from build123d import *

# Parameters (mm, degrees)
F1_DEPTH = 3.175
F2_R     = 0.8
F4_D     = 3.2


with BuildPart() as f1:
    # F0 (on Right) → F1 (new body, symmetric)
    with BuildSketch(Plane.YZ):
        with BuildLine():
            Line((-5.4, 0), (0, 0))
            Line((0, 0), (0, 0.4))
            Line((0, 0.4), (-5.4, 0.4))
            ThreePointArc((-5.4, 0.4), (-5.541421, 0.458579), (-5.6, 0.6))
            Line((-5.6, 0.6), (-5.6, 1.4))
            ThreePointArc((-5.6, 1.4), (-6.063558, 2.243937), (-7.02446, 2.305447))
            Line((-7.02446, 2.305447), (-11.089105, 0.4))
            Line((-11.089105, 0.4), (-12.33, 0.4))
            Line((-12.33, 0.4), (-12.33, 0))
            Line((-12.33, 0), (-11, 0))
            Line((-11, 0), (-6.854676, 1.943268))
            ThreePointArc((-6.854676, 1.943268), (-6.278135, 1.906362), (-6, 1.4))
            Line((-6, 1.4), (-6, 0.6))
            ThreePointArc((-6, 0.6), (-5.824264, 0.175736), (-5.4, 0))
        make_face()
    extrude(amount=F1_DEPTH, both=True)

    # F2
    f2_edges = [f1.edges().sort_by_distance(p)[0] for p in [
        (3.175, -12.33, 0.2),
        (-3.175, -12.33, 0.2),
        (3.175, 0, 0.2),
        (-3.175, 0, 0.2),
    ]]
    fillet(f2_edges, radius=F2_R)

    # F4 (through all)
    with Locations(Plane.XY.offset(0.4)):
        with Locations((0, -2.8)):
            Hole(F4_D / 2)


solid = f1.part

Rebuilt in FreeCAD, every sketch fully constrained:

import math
import FreeCAD as App
import Part
import Sketcher


def edges_at(feature, points):
    """Names of the edges that pass closest to the given points."""
    edges = feature.Shape.Edges
    near = lambda p: min(range(len(edges)), key=lambda i: edges[i].distToShape(Part.Vertex(*p))[0])
    return sorted({f"Edge{near(p) + 1}" for p in points})

doc = App.newDocument("Part")
body = doc.addObject("PartDesign::Body", "Body")

sketch1 = body.newObject("Sketcher::SketchObject", "Sketch")
sketch1.AttachmentSupport = (doc.getObject("YZ_Plane"), [""])
sketch1.MapMode = "FlatFace"
sketch1.addGeometry(Part.LineSegment(App.Vector(-5.4, 0, 0), App.Vector(0, 0, 0)), False)
sketch1.addGeometry(Part.LineSegment(App.Vector(0, 0, 0), App.Vector(0, 0.4, 0)), False)
sketch1.addGeometry(Part.LineSegment(App.Vector(0, 0.4, 0), App.Vector(-5.4, 0.4, 0)), False)
sketch1.addGeometry(Part.ArcOfCircle(Part.Circle(App.Vector(-5.4, 0.6, 0), App.Vector(0, 0, 1), 0.2), math.radians(-180), math.radians(-90)), False)
sketch1.addGeometry(Part.LineSegment(App.Vector(-5.6, 0.6, 0), App.Vector(-5.6, 1.4, 0)), False)
sketch1.addGeometry(Part.ArcOfCircle(Part.Circle(App.Vector(-6.6, 1.4, 0), App.Vector(0, 0, 1), 1), math.radians(0), math.radians(115)), False)
sketch1.addGeometry(Part.LineSegment(App.Vector(-7.02, 2.31, 0), App.Vector(-11.09, 0.4, 0)), False)
sketch1.addGeometry(Part.LineSegment(App.Vector(-11.09, 0.4, 0), App.Vector(-12.33, 0.4, 0)), False)
sketch1.addGeometry(Part.LineSegment(App.Vector(-12.33, 0.4, 0), App.Vector(-12.33, 0, 0)), False)
sketch1.addGeometry(Part.LineSegment(App.Vector(-12.33, 0, 0), App.Vector(-11, 0, 0)), False)
sketch1.addGeometry(Part.LineSegment(App.Vector(-11, 0, 0), App.Vector(-6.85, 1.94, 0)), False)
sketch1.addGeometry(Part.ArcOfCircle(Part.Circle(App.Vector(-6.6, 1.4, 0), App.Vector(0, 0, 1), 0.6), math.radians(0), math.radians(115)), False)
sketch1.addGeometry(Part.LineSegment(App.Vector(-6, 1.4, 0), App.Vector(-6, 0.6, 0)), False)
sketch1.addGeometry(Part.ArcOfCircle(Part.Circle(App.Vector(-5.4, 0.6, 0), App.Vector(0, 0, 1), 0.6), math.radians(-180), math.radians(-90)), False)
sketch1.addConstraint(Sketcher.Constraint("Coincident", 0, 2, 1, 1))
sketch1.addConstraint(Sketcher.Constraint("Coincident", 1, 2, 2, 1))
sketch1.addConstraint(Sketcher.Constraint("Coincident", 2, 2, 3, 2))
sketch1.addConstraint(Sketcher.Constraint("Coincident", 3, 1, 4, 1))
sketch1.addConstraint(Sketcher.Constraint("Tangent", 4, 2, 5, 1))
sketch1.addConstraint(Sketcher.Constraint("Tangent", 5, 2, 6, 1))
sketch1.addConstraint(Sketcher.Constraint("Coincident", 6, 2, 7, 1))
sketch1.addConstraint(Sketcher.Constraint("Coincident", 7, 2, 8, 1))
sketch1.addConstraint(Sketcher.Constraint("Coincident", 8, 2, 9, 1))
sketch1.addConstraint(Sketcher.Constraint("Coincident", 9, 2, 10, 1))
sketch1.addConstraint(Sketcher.Constraint("Tangent", 10, 2, 11, 2))
sketch1.addConstraint(Sketcher.Constraint("Tangent", 11, 1, 12, 1))
sketch1.addConstraint(Sketcher.Constraint("Tangent", 12, 2, 13, 1))
sketch1.addConstraint(Sketcher.Constraint("Tangent", 13, 2, 0, 1))
sketch1.addConstraint(Sketcher.Constraint("Horizontal", 0))
sketch1.addConstraint(Sketcher.Constraint("Vertical", 1))
sketch1.addConstraint(Sketcher.Constraint("Horizontal", 2))
sketch1.addConstraint(Sketcher.Constraint("Vertical", 4))
sketch1.addConstraint(Sketcher.Constraint("Horizontal", 7))
sketch1.addConstraint(Sketcher.Constraint("Vertical", 8))
sketch1.addConstraint(Sketcher.Constraint("Horizontal", 9))
sketch1.addConstraint(Sketcher.Constraint("Vertical", 12))
sketch1.addConstraint(Sketcher.Constraint("Coincident", 0, 2, -1, 1))
sketch1.addConstraint(Sketcher.Constraint("Coincident", 11, 3, 5, 3))
sketch1.addConstraint(Sketcher.Constraint("Coincident", 13, 3, 3, 3))
sketch1.addConstraint(Sketcher.Constraint("Equal", 11, 13))
sketch1.addConstraint(Sketcher.Constraint("PointOnObject", 8, 2, -1))
sketch1.addConstraint(Sketcher.Constraint("Parallel", 6, 10))
sketch1.addConstraint(Sketcher.Constraint("Horizontal", 13, 3, 3, 1))
sketch1.addConstraint(Sketcher.Constraint("Horizontal", 2, 2, 6, 2))
sketch1.addConstraint(Sketcher.Constraint("Vertical", 13, 3, 2, 2))
sketch1.addConstraint(Sketcher.Constraint("Radius", 5, 1.0))
sketch1.addConstraint(Sketcher.Constraint("Radius", 3, 0.200001))
sketch1.addConstraint(Sketcher.Constraint("DistanceX", 0, 1, 0, 2, 5.4))
sketch1.addConstraint(Sketcher.Constraint("DistanceY", 4, 1, 4, 2, 0.8))
sketch1.addConstraint(Sketcher.Constraint("DistanceX", 9, 2, -1, 1, 11.0))
sketch1.addConstraint(Sketcher.Constraint("DistanceX", 9, 1, 9, 2, 1.33))
pad1 = body.newObject("PartDesign::Pad", "Pad")
pad1.Profile = sketch1
pad1.Length = 6.35
pad1.Midplane = True
doc.recompute()

fillet = body.newObject("PartDesign::Fillet", "Fillet")
fillet.Base = (pad1, edges_at(pad1, [
    (3.175, -12.33, 0.2),
    (-3.175, -12.33, 0.2),
    (3.175, 0, 0.2),
    (-3.175, 0, 0.2),
]))
fillet.Radius = 0.8

sketch2 = body.newObject("Sketcher::SketchObject", "Sketch001")
sketch2.AttachmentSupport = (doc.getObject("XY_Plane"), [""])
sketch2.MapMode = "FlatFace"
sketch2.AttachmentOffset = App.Placement(App.Vector(0, 0, 0.4), App.Rotation())
sketch2.addGeometry(Part.Circle(App.Vector(0, -2.8, 0), App.Vector(0, 0, 1), 1.6), False)
sketch2.addConstraint(Sketcher.Constraint("PointOnObject", 0, 3, -2))
sketch2.addConstraint(Sketcher.Constraint("Diameter", 0, 3.2))
sketch2.addConstraint(Sketcher.Constraint("DistanceY", 0, 3, -1, 1, 2.8))
doc.recompute()
hole = body.newObject("PartDesign::Hole", "Hole")
hole.Profile = sketch2
hole.ThreadType = "None"
hole.Diameter = 3.2
hole.DepthType = "ThroughAll"

doc.recompute()
